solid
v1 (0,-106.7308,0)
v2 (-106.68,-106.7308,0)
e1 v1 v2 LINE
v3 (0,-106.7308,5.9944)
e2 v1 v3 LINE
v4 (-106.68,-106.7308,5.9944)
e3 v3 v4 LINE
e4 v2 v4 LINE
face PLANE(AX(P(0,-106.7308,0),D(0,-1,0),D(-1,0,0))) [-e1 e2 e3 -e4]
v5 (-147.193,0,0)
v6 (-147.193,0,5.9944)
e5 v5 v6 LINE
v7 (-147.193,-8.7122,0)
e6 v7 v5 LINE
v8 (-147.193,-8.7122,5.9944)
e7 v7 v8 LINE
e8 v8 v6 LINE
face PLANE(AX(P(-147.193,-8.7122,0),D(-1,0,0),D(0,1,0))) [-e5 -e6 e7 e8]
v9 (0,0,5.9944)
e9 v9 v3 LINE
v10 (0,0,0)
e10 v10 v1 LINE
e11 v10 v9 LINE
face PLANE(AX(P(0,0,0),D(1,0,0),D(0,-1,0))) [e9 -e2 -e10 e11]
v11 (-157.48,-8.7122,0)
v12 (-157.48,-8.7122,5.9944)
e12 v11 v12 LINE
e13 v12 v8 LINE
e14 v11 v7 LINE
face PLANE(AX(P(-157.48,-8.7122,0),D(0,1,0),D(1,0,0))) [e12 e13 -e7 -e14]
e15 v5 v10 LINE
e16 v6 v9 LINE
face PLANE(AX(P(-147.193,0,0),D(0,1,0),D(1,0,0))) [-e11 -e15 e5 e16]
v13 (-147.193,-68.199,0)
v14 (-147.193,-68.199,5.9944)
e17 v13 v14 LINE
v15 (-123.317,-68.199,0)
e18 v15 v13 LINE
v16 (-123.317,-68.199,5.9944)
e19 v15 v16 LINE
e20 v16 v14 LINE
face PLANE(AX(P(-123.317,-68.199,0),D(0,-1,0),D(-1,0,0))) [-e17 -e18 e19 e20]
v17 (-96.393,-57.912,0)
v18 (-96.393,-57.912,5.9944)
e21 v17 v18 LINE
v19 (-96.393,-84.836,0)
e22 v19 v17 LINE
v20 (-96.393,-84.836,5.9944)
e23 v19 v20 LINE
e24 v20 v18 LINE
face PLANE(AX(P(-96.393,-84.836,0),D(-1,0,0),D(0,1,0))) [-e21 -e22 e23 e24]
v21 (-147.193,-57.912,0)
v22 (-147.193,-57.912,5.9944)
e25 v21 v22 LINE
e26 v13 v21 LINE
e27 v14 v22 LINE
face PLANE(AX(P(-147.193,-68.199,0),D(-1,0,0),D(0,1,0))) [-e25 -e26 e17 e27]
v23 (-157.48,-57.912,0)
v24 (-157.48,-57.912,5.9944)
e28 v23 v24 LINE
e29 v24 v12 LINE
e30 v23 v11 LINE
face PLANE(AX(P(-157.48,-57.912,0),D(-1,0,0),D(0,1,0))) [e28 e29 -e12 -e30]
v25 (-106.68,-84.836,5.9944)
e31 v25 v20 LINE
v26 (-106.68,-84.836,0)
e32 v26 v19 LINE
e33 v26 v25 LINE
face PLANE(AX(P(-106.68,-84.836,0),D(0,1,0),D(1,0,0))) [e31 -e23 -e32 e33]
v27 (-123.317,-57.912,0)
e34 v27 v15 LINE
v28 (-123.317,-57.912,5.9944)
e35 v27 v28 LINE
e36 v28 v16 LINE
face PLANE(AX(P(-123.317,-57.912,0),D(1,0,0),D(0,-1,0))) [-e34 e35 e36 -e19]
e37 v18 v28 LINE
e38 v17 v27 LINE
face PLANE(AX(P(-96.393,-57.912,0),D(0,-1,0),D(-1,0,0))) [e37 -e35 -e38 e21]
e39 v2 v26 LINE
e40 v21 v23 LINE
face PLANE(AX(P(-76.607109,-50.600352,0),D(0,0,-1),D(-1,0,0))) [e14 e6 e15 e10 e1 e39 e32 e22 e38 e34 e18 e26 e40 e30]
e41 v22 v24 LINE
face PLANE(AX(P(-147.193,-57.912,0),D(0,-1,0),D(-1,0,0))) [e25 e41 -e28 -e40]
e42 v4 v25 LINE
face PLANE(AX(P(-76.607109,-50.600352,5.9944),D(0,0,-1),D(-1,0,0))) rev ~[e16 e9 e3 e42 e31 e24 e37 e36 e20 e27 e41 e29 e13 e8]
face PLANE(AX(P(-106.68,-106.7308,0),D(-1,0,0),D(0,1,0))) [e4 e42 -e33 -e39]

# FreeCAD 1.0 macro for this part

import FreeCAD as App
import Part
import Sketcher
from FreeCAD import Vector
Q = App.Units.Quantity


def add_polygon(sketch, points):
    """Adds a closed chain of lines whose ends are joined by coincident constraints."""
    first, n = sketch.GeometryCount, len(points)
    for a, b in zip(points, points[1:] + points[:1]):
        sketch.addGeometry(Part.LineSegment(App.Vector(*a, 0), App.Vector(*b, 0)), False)
    for i in range(n):
        sketch.addConstraint(Sketcher.Constraint("Coincident", first + i, 2, first + (i + 1) % n, 1))

doc = App.newDocument("Part")
body = doc.addObject("PartDesign::Body", "Body")

# Sketch on XY plane
sketch1 = doc.addObject("Sketcher::SketchObject", "Sketch")
body.addObject(sketch1)
sketch1.AttachmentSupport = (doc.XY_Plane, [""])
sketch1.MapMode = "FlatFace"
add_polygon(sketch1, [(-147, -9), (-157, -9), (-157, -58), (-147, -58), (-147, -68), (-123, -68), (-123, -58), (-96, -58), (-96, -85), (-107, -85), (-107, -107), (0, -107), (0, 0), (-147, 0)])  # lines 0-13
sketch1.addConstraint([
    Sketcher.Constraint("Horizontal", 0),
    Sketcher.Constraint("Vertical", 1),
    Sketcher.Constraint("Horizontal", 2),
    Sketcher.Constraint("Vertical", 3),
    Sketcher.Constraint("Horizontal", 4),
    Sketcher.Constraint("Vertical", 5),
    Sketcher.Constraint("Horizontal", 6),
    Sketcher.Constraint("Vertical", 7),
    Sketcher.Constraint("Horizontal", 8),
    Sketcher.Constraint("Vertical", 9),
    Sketcher.Constraint("Horizontal", 10),
    Sketcher.Constraint("Vertical", 11),
    Sketcher.Constraint("Horizontal", 12),
    Sketcher.Constraint("Vertical", 13),
    Sketcher.Constraint("Coincident", 11, 2, -1, 1),
    Sketcher.Constraint("Horizontal", 2, 2, 5, 2),
    Sketcher.Constraint("Vertical", 3, 2, 12, 2),
    Sketcher.Constraint("Equal", 2, 8),
    Sketcher.Constraint("Equal", 8, 3),
    Sketcher.Constraint("Equal", 6, 7),
    Sketcher.Constraint("DistanceX", 10, 1, 10, 2, Q("4.2 in")),
    Sketcher.Constraint("DistanceX", 2, 2, 6, 2, Q("2 in")),
    Sketcher.Constraint("DistanceX", 4, 1, 4, 2, Q("0.94 in")),
    Sketcher.Constraint("DistanceX", 0, 2, 0, 1, Q("0.405 in")),
    Sketcher.Constraint("DistanceY", 1, 2, 1, 1, Q("1.937 in")),
    Sketcher.Constraint("DistanceY", 9, 2, 9, 1, Q("0.862 in")),
    Sketcher.Constraint("DistanceY", 11, 1, 11, 2, Q("4.202 in")),
])
pad1 = doc.addObject("PartDesign::Pad", "Pad")
body.addObject(pad1)
pad1.Profile = sketch1
pad1.Length = Q("0.236 in")

doc.recompute()
